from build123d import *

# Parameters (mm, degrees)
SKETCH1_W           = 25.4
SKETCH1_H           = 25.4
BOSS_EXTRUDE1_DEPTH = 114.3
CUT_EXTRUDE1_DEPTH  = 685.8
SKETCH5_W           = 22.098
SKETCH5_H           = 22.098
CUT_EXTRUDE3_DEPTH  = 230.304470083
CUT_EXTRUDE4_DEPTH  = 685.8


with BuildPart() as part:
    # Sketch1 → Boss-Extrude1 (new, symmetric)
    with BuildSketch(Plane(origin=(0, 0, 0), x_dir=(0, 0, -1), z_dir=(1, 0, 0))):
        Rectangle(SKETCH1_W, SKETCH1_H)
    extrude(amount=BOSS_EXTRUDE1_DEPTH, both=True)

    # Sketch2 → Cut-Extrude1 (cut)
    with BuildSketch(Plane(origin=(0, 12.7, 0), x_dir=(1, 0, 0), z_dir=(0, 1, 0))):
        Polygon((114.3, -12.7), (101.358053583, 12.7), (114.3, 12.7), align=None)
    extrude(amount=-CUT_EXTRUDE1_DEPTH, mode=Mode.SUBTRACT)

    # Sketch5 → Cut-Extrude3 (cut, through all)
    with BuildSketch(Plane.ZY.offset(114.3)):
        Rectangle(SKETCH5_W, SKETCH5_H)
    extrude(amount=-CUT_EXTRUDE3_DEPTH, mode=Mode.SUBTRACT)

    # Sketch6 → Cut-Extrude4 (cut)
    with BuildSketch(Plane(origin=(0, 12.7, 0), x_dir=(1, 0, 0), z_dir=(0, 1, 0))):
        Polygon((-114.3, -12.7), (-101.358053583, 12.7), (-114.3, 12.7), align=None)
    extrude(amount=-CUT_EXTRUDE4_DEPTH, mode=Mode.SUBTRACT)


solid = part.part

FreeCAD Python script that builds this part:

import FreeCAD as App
import Part
import Sketcher
from FreeCAD import Vector
Q = App.Units.Quantity

doc = App.newDocument("Part")
body = doc.addObject("PartDesign::Body", "Body")

# Sketch on YZ plane
sketch1 = doc.addObject("Sketcher::SketchObject", "Sketch")
body.addObject(sketch1)
sketch1.AttachmentSupport = (doc.YZ_Plane, [""])
sketch1.MapMode = "FlatFace"
sketch1.addGeometry([
    Part.LineSegment(Vector(13, 13, 0), Vector(-13, 13, 0)),
    Part.LineSegment(Vector(-13, 13, 0), Vector(-13, -13, 0)),
    Part.LineSegment(Vector(-13, -13, 0), Vector(13, -13, 0)),
    Part.LineSegment(Vector(13, -13, 0), Vector(13, 13, 0)),
], False)
sketch1.addConstraint([
    Sketcher.Constraint("Coincident", 0, 2, 1, 1),
    Sketcher.Constraint("Coincident", 1, 2, 2, 1),
    Sketcher.Constraint("Coincident", 2, 2, 3, 1),
    Sketcher.Constraint("Coincident", 3, 2, 0, 1),
    Sketcher.Constraint("Horizontal", 0),
    Sketcher.Constraint("Vertical", 1),
    Sketcher.Constraint("Horizontal", 2),
    Sketcher.Constraint("Vertical", 3),
    Sketcher.Constraint("Symmetric", 0, 2, 2, 2, -1, 1),
    Sketcher.Constraint("Equal", 2, 1),
    Sketcher.Constraint("DistanceX", 0, 2, 0, 1, Q("1 in")),
])
pad1 = doc.addObject("PartDesign::Pad", "Pad")
body.addObject(pad1)
pad1.Profile = sketch1
pad1.Length = Q("9 in")
pad1.Midplane = True

# Sketch on XZ plane
sketch2 = doc.addObject("Sketcher::SketchObject", "Sketch001")
body.addObject(sketch2)
sketch2.AttachmentSupport = (doc.XZ_Plane, [""])
sketch2.MapMode = "FlatFace"
sketch2.AttachmentOffset = App.Placement(Vector(0, 0, -0.5 * 25.4), App.Rotation())
sketch2.addGeometry([
    Part.LineSegment(Vector(101, -13, 0), Vector(114, 13, 0)),
    Part.LineSegment(Vector(114, 13, 0), Vector(114, -13, 0)),
    Part.LineSegment(Vector(114, -13, 0), Vector(101, -13, 0)),
], False)
sketch2.addConstraint([
    Sketcher.Constraint("Coincident", 0, 2, 1, 1),
    Sketcher.Constraint("Coincident", 1, 2, 2, 1),
    Sketcher.Constraint("Coincident", 2, 2, 0, 1),
    Sketcher.Constraint("Vertical", 1),
    Sketcher.Constraint("Horizontal", 2),
    Sketcher.Constraint("DistanceY", 1, 2, 1, 1, Q("1 in")),
    Sketcher.Constraint("Angle", 0, Q("63 deg")),
    Sketcher.Constraint("DistanceX", -1, 1, 0, 2, Q("4.5 in")),
    Sketcher.Constraint("DistanceY", -1, 1, 0, 2, Q("0.5 in")),
])
pocket1 = doc.addObject("PartDesign::Pocket", "Pocket")
body.addObject(pocket1)
pocket1.Profile = sketch2
pocket1.Length = Q("27 in")
pocket1.Reversed = True

# Sketch on YZ plane
sketch3 = doc.addObject("Sketcher::SketchObject", "Sketch002")
body.addObject(sketch3)
sketch3.AttachmentSupport = (doc.YZ_Plane, [""])
sketch3.MapMode = "FlatFace"
sketch3.AttachmentOffset = App.Placement(Vector(0, 0, -4.5 * 25.4), App.Rotation())
sketch3.addGeometry([
    Part.LineSegment(Vector(11, -11, 0), Vector(-11, -11, 0)),
    Part.LineSegment(Vector(-11, -11, 0), Vector(-11, 11, 0)),
    Part.LineSegment(Vector(-11, 11, 0), Vector(11, 11, 0)),
    Part.LineSegment(Vector(11, 11, 0), Vector(11, -11, 0)),
], False)
sketch3.addConstraint([
    Sketcher.Constraint("Coincident", 0, 2, 1, 1),
    Sketcher.Constraint("Coincident", 1, 2, 2, 1),
    Sketcher.Constraint("Coincident", 2, 2, 3, 1),
    Sketcher.Constraint("Coincident", 3, 2, 0, 1),
    Sketcher.Constraint("Horizontal", 0),
    Sketcher.Constraint("Vertical", 1),
    Sketcher.Constraint("Horizontal", 2),
    Sketcher.Constraint("Vertical", 3),
    Sketcher.Constraint("Symmetric", 0, 2, 2, 2, -1, 1),
    Sketcher.Constraint("Equal", 2, 1),
    Sketcher.Constraint("DistanceX", 0, 2, 0, 1, Q("0.87 in")),
])
pocket2 = doc.addObject("PartDesign::Pocket", "Pocket001")
body.addObject(pocket2)
pocket2.Profile = sketch3
pocket2.Type = "ThroughAll"
pocket2.Reversed = True

# Sketch on XZ plane
sketch4 = doc.addObject("Sketcher::SketchObject", "Sketch003")
body.addObject(sketch4)
sketch4.AttachmentSupport = (doc.XZ_Plane, [""])
sketch4.MapMode = "FlatFace"
sketch4.AttachmentOffset = App.Placement(Vector(0, 0, -0.5 * 25.4), App.Rotation())
sketch4.addGeometry([
    Part.LineSegment(Vector(-114, 13, 0), Vector(-101, -13, 0)),
    Part.LineSegment(Vector(-101, -13, 0), Vector(-114, -13, 0)),
    Part.LineSegment(Vector(-114, -13, 0), Vector(-114, 13, 0)),
], False)
sketch4.addConstraint([
    Sketcher.Constraint("Coincident", 0, 2, 1, 1),
    Sketcher.Constraint("Coincident", 1, 2, 2, 1),
    Sketcher.Constraint("Coincident", 2, 2, 0, 1),
    Sketcher.Constraint("Horizontal", 1),
    Sketcher.Constraint("Vertical", 2),
    Sketcher.Constraint("DistanceY", 2, 1, 2, 2, Q("1 in")),
    Sketcher.Constraint("Angle", 0, Q("-63 deg")),
    Sketcher.Constraint("DistanceY", 0, 2, -1, 1, Q("0.5 in")),
    Sketcher.Constraint("DistanceX", 1, 2, -1, 1, Q("4.5 in")),
])
pocket3 = doc.addObject("PartDesign::Pocket", "Pocket002")
body.addObject(pocket3)
pocket3.Profile = sketch4
pocket3.Length = Q("27 in")
pocket3.Reversed = True

doc.recompute()
